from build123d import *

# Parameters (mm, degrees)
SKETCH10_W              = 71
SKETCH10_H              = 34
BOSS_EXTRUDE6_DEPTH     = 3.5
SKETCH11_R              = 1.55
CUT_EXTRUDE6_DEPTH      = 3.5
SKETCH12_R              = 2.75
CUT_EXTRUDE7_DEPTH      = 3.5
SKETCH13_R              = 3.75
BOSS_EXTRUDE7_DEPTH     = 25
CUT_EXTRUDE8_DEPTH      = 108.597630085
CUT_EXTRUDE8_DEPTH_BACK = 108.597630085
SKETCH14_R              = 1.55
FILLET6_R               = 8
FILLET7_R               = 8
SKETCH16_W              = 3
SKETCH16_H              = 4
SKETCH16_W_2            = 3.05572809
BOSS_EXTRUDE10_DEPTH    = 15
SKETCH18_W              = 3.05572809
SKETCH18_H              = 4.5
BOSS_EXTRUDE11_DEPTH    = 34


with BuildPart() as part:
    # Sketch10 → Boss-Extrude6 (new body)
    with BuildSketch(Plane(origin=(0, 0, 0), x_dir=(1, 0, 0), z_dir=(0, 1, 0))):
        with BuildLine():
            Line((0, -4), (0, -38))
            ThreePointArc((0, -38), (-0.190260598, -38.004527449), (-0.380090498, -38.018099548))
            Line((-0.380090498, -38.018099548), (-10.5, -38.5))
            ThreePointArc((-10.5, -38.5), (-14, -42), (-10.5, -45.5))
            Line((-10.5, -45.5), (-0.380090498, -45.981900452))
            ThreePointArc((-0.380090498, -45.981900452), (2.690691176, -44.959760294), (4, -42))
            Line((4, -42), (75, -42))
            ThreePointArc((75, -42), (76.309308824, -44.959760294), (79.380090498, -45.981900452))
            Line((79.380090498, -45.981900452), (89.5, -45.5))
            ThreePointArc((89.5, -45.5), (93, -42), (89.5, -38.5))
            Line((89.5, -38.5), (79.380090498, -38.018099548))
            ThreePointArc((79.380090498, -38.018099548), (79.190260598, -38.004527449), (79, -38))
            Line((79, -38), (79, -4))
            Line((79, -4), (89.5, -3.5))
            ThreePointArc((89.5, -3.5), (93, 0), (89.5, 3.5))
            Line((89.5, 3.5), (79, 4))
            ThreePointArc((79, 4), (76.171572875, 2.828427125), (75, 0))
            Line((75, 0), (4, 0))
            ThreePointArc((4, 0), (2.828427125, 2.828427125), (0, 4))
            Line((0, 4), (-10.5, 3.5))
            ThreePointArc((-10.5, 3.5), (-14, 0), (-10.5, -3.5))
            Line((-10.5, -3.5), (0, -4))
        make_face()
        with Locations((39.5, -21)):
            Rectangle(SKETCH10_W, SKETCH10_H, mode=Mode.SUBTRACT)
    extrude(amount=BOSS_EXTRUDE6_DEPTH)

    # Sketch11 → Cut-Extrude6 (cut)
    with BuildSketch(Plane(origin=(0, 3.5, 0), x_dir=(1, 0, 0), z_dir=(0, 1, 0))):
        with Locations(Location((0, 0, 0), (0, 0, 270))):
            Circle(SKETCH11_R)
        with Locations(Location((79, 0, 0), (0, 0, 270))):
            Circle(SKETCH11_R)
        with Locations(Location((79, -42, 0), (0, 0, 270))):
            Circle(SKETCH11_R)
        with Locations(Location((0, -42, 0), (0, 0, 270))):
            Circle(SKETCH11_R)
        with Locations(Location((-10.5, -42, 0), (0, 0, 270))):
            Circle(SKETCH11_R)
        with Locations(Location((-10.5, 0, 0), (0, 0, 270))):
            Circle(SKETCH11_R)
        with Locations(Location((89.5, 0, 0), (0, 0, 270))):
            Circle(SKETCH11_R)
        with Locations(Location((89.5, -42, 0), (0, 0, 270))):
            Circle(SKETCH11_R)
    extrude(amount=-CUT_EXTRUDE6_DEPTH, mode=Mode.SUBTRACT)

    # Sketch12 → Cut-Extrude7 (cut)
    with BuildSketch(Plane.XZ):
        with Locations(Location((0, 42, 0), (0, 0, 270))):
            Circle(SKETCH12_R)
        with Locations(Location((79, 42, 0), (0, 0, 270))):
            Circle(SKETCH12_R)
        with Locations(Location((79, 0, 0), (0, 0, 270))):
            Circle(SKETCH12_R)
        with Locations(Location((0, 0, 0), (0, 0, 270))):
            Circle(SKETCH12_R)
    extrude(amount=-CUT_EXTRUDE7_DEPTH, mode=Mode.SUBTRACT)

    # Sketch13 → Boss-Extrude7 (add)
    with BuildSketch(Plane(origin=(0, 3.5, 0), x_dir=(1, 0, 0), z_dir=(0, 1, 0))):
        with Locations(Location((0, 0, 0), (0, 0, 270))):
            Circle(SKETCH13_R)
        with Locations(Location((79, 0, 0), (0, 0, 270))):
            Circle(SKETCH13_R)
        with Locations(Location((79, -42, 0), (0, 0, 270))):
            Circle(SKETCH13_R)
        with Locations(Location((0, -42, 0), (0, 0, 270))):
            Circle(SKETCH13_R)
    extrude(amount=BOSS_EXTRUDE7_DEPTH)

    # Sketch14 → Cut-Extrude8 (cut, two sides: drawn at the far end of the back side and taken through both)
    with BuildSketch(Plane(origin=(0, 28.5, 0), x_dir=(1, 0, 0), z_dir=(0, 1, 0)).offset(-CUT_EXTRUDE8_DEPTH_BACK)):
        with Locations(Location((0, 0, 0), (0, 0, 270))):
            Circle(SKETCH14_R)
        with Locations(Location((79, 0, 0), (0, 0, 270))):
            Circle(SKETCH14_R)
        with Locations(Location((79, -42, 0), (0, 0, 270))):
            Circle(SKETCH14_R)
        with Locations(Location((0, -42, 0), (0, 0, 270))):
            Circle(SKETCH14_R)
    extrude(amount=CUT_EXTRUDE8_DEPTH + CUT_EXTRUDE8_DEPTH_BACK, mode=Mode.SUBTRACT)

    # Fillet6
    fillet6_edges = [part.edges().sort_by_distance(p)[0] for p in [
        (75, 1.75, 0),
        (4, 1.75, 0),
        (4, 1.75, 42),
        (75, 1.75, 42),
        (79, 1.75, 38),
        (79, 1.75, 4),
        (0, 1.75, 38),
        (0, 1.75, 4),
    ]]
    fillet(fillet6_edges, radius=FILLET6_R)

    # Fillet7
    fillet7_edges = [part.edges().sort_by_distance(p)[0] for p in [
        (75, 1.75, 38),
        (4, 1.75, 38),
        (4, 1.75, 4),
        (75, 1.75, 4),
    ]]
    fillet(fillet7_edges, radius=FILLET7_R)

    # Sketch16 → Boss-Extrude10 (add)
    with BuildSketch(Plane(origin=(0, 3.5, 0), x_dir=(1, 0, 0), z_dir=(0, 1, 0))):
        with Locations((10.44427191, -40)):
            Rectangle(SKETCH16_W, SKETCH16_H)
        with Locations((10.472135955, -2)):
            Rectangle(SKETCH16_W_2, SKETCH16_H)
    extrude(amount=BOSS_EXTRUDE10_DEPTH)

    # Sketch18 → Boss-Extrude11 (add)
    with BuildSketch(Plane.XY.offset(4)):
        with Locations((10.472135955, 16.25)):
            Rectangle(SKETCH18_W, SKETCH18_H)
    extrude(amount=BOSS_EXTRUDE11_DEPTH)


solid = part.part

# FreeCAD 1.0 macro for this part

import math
import FreeCAD as App
import Part
import Sketcher

V = App.Vector


def edges_at(feature, points):
    """Names of the edges that pass closest to the given points."""
    edges = feature.Shape.Edges
    near = lambda p: min(range(len(edges)), key=lambda i: edges[i].distToShape(Part.Vertex(*p))[0])
    return sorted({f"Edge{near(p) + 1}" for p in points})

doc = App.newDocument("Part")
body = doc.addObject("PartDesign::Body", "Body")

sketch1 = body.newObject("Sketcher::SketchObject", "Sketch")
sketch1.AttachmentSupport = (doc.getObject("XZ_Plane"), [""])
sketch1.MapMode = "FlatFace"
sketch1.addGeometry([
    Part.LineSegment(V(0, 4, 0), V(0, 38, 0)),
    Part.ArcOfCircle(Part.Circle(V(0, 42, 0), V(0, 0, 1), 4), math.radians(-95.45), math.radians(-90)),
    Part.LineSegment(V(-0.38, 38.02, 0), V(-10.5, 38.5, 0)),
    Part.ArcOfCircle(Part.Circle(V(-10.5, 42, 0), V(0, 0, 1), 3.5), math.radians(90), math.radians(270)),
    Part.LineSegment(V(-10.5, 45.5, 0), V(-0.38, 45.98, 0)),
    Part.ArcOfCircle(Part.Circle(V(0, 42, 0), V(0, 0, 1), 4), math.radians(0), math.radians(95)),
    Part.LineSegment(V(4, 42, 0), V(75, 42, 0)),
    Part.ArcOfCircle(Part.Circle(V(79, 42, 0), V(0, 0, 1), 4), math.radians(85), math.radians(180)),
    Part.LineSegment(V(79.38, 45.98, 0), V(89.5, 45.5, 0)),
    Part.ArcOfCircle(Part.Circle(V(89.5, 42, 0), V(0, 0, 1), 3.5), math.radians(-90), math.radians(90)),
    Part.LineSegment(V(89.5, 38.5, 0), V(79.38, 38.02, 0)),
    Part.ArcOfCircle(Part.Circle(V(79, 42, 0), V(0, 0, 1), 4), math.radians(-90), math.radians(-84.55)),
    Part.LineSegment(V(79, 38, 0), V(79, 4, 0)),
    Part.LineSegment(V(79, 4, 0), V(89.5, 3.5, 0)),
    Part.ArcOfCircle(Part.Circle(V(89.5, 0, 0), V(0, 0, 1), 3.5), math.radians(-90), math.radians(90)),
    Part.LineSegment(V(89.5, -3.5, 0), V(79, -4, 0)),
    Part.ArcOfCircle(Part.Circle(V(79, 0, 0), V(0, 0, 1), 4), math.radians(180), math.radians(270)),
    Part.LineSegment(V(75, 0, 0), V(4, 0, 0)),
    Part.ArcOfCircle(Part.Circle(V(0, 0, 0), V(0, 0, 1), 4), math.radians(-90), math.radians(0)),
    Part.LineSegment(V(0, -4, 0), V(-10.5, -3.5, 0)),
    Part.ArcOfCircle(Part.Circle(V(-10.5, 0, 0), V(0, 0, 1), 3.5), math.radians(90), math.radians(270)),
    Part.LineSegment(V(-10.5, 3.5, 0), V(0, 4, 0)),
    Part.LineSegment(V(75, 38, 0), V(4, 38, 0)),
    Part.LineSegment(V(4, 38, 0), V(4, 4, 0)),
    Part.LineSegment(V(4, 4, 0), V(75, 4, 0)),
    Part.LineSegment(V(75, 4, 0), V(75, 38, 0)),
], False)
sketch1.addConstraint([
    Sketcher.Constraint("Coincident", 0, 2, 1, 2),
    Sketcher.Constraint("Coincident", 1, 1, 2, 1),
    Sketcher.Constraint("Coincident", 2, 2, 3, 2),
    Sketcher.Constraint("Coincident", 3, 1, 4, 1),
    Sketcher.Constraint("Coincident", 4, 2, 5, 2),
    Sketcher.Constraint("Coincident", 5, 1, 6, 1),
    Sketcher.Constraint("Coincident", 6, 2, 7, 2),
    Sketcher.Constraint("Coincident", 7, 1, 8, 1),
    Sketcher.Constraint("Coincident", 8, 2, 9, 2),
    Sketcher.Constraint("Coincident", 9, 1, 10, 1),
    Sketcher.Constraint("Coincident", 10, 2, 11, 2),
    Sketcher.Constraint("Coincident", 11, 1, 12, 1),
    Sketcher.Constraint("Coincident", 12, 2, 13, 1),
    Sketcher.Constraint("Coincident", 13, 2, 14, 2),
    Sketcher.Constraint("Coincident", 14, 1, 15, 1),
    Sketcher.Constraint("Coincident", 15, 2, 16, 2),
    Sketcher.Constraint("Coincident", 16, 1, 17, 1),
    Sketcher.Constraint("Coincident", 17, 2, 18, 2),
    Sketcher.Constraint("Coincident", 18, 1, 19, 1),
    Sketcher.Constraint("Coincident", 19, 2, 20, 2),
    Sketcher.Constraint("Coincident", 20, 1, 21, 1),
    Sketcher.Constraint("Coincident", 21, 2, 0, 1),
    Sketcher.Constraint("Coincident", 22, 2, 23, 1),
    Sketcher.Constraint("Coincident", 23, 2, 24, 1),
    Sketcher.Constraint("Coincident", 24, 2, 25, 1),
    Sketcher.Constraint("Coincident", 25, 2, 22, 1),
    Sketcher.Constraint("Vertical", 0),
    Sketcher.Constraint("Horizontal", 6),
    Sketcher.Constraint("Vertical", 12),
    Sketcher.Constraint("Horizontal", 17),
    Sketcher.Constraint("Horizontal", 22),
    Sketcher.Constraint("Vertical", 23),
    Sketcher.Constraint("Horizontal", 24),
    Sketcher.Constraint("Vertical", 25),
    Sketcher.Constraint("Coincident", 18, 3, -1, 1),
    Sketcher.Constraint("Coincident", 5, 3, 1, 3),
    Sketcher.Constraint("Coincident", 11, 3, 7, 3),
    Sketcher.Constraint("Equal", 1, 5),
    Sketcher.Constraint("Equal", 5, 7),
    Sketcher.Constraint("Equal", 3, 9),
    Sketcher.Constraint("Equal", 7, 11),
    Sketcher.Constraint("Equal", 9, 14),
    Sketcher.Constraint("Equal", 11, 16),
    Sketcher.Constraint("Equal", 16, 18),
    Sketcher.Constraint("Equal", 14, 20),
    Sketcher.Constraint("Symmetric", 18, 1, 21, 2, -1, 1),
    Sketcher.Constraint("Symmetric", 13, 2, 14, 1, -1),
    Sketcher.Constraint("Symmetric", 12, 2, 15, 2, -1),
    Sketcher.Constraint("Symmetric", 19, 2, 20, 1, -1),
    Sketcher.Constraint("PointOnObject", 1, 3, -2),
    Sketcher.Constraint("PointOnObject", 16, 3, -1),
    Sketcher.Constraint("PointOnObject", 0, 2, -2),
    Sketcher.Constraint("PointOnObject", 16, 1, -1),
    Sketcher.Constraint("Parallel", 2, 8),
    Sketcher.Constraint("Parallel", 4, 10),
    Sketcher.Constraint("Parallel", 8, 13),
    Sketcher.Constraint("Parallel", 10, 15),
    Sketcher.Constraint("Parallel", 13, 19),
    Sketcher.Constraint("Horizontal", 1, 3, 3, 3),
    Sketcher.Constraint("Horizontal", 5, 3, 7, 3),
    Sketcher.Constraint("Horizontal", 7, 3, 9, 3),
    Sketcher.Constraint("Horizontal", 11, 3, 5, 1),
    Sketcher.Constraint("Horizontal", 4, 2, 7, 1),
    Sketcher.Constraint("Horizontal", 1, 1, 10, 2),
    Sketcher.Constraint("Horizontal", 11, 1, 22, 2),
    Sketcher.Constraint("Horizontal", 21, 2, 23, 2),
    Sketcher.Constraint("Vertical", 9, 3, 14, 3),
    Sketcher.Constraint("Vertical", 11, 3, 16, 3),
    Sketcher.Constraint("Vertical", 3, 3, 20, 3),
    Sketcher.Constraint("Vertical", 20, 3, 2, 2),
    Sketcher.Constraint("Vertical", 2, 2, 3, 1),
    Sketcher.Constraint("Vertical", 14, 3, 8, 2),
    Sketcher.Constraint("Vertical", 16, 3, 11, 1),
    Sketcher.Constraint("Vertical", 9, 1, 13, 2),
    Sketcher.Constraint("Vertical", 17, 2, 22, 2),
    Sketcher.Constraint("Vertical", 16, 1, 24, 2),
    Sketcher.Constraint("Radius", 1, 4.0),
    Sketcher.Constraint("Radius", 3, 3.5),
    Sketcher.Constraint("DistanceX", 6, 1, 6, 2, 71.0),
    Sketcher.Constraint("DistanceY", 0, 1, 0, 2, 34.0),
    Sketcher.Constraint("DistanceX", 3, 3, 9, 3, 100.0),
])
pad1 = body.newObject("PartDesign::Pad", "Pad")
pad1.Profile = sketch1
pad1.Length = 3.5
pad1.Reversed = True

sketch2 = body.newObject("Sketcher::SketchObject", "Sketch001")
sketch2.AttachmentSupport = (doc.getObject("XZ_Plane"), [""])
sketch2.MapMode = "FlatFace"
sketch2.AttachmentOffset = App.Placement(V(0, 0, -3.5), App.Rotation())
sketch2.addGeometry([
    Part.Circle(V(0, 0, 0), V(0, 0, 1), 1.6),
    Part.Circle(V(79, 0, 0), V(0, 0, 1), 1.6),
    Part.Circle(V(79, 42, 0), V(0, 0, 1), 1.6),
    Part.Circle(V(0, 42, 0), V(0, 0, 1), 1.6),
    Part.Circle(V(-10.5, 42, 0), V(0, 0, 1), 1.6),
    Part.Circle(V(-10.5, 0, 0), V(0, 0, 1), 1.6),
    Part.Circle(V(89.5, 0, 0), V(0, 0, 1), 1.6),
    Part.Circle(V(89.5, 42, 0), V(0, 0, 1), 1.6),
], False)
sketch2.addConstraint([
    Sketcher.Constraint("Coincident", 0, 3, -1, 1),
    Sketcher.Constraint("Equal", 0, 1),
    Sketcher.Constraint("Equal", 1, 2),
    Sketcher.Constraint("Equal", 2, 3),
    Sketcher.Constraint("Equal", 3, 4),
    Sketcher.Constraint("Equal", 4, 5),
    Sketcher.Constraint("Equal", 5, 6),
    Sketcher.Constraint("Equal", 6, 7),
    Sketcher.Constraint("PointOnObject", 1, 3, -1),
    Sketcher.Constraint("PointOnObject", 3, 3, -2),
    Sketcher.Constraint("PointOnObject", 5, 3, -1),
    Sketcher.Constraint("PointOnObject", 6, 3, -1),
    Sketcher.Constraint("Horizontal", 2, 3, 3, 3),
    Sketcher.Constraint("Horizontal", 3, 3, 4, 3),
    Sketcher.Constraint("Horizontal", 4, 3, 7, 3),
    Sketcher.Constraint("Vertical", 1, 3, 2, 3),
    Sketcher.Constraint("Vertical", 4, 3, 5, 3),
    Sketcher.Constraint("Vertical", 6, 3, 7, 3),
    Sketcher.Constraint("Diameter", 0, 3.1),
    Sketcher.Constraint("DistanceX", -1, 1, 1, 3, 79.0),
    Sketcher.Constraint("DistanceY", -1, 1, 2, 3, 42.0),
    Sketcher.Constraint("DistanceX", 5, 3, 6, 3, 100.0),
    Sketcher.Constraint("DistanceX", 4, 3, -1, 1, 10.5),
])
pocket1 = body.newObject("PartDesign::Pocket", "Pocket")
pocket1.Profile = sketch2
pocket1.Length = 3.5
pocket1.Reversed = True

sketch3 = body.newObject("Sketcher::SketchObject", "Sketch002")
sketch3.AttachmentSupport = (doc.getObject("XZ_Plane"), [""])
sketch3.MapMode = "FlatFace"
sketch3.addGeometry([
    Part.Circle(V(0, 42, 0), V(0, 0, 1), 2.8),
    Part.Circle(V(79, 42, 0), V(0, 0, 1), 2.8),
    Part.Circle(V(79, 0, 0), V(0, 0, 1), 2.8),
    Part.Circle(V(0, 0, 0), V(0, 0, 1), 2.8),
], False)
sketch3.addConstraint([
    Sketcher.Constraint("Coincident", 3, 3, -1, 1),
    Sketcher.Constraint("Equal", 0, 1),
    Sketcher.Constraint("Equal", 1, 2),
    Sketcher.Constraint("Equal", 2, 3),
    Sketcher.Constraint("PointOnObject", 0, 3, -2),
    Sketcher.Constraint("PointOnObject", 2, 3, -1),
    Sketcher.Constraint("Horizontal", 0, 3, 1, 3),
    Sketcher.Constraint("Vertical", 1, 3, 2, 3),
    Sketcher.Constraint("Diameter", 0, 5.5),
    Sketcher.Constraint("DistanceY", -1, 1, 0, 3, 42.0),
    Sketcher.Constraint("DistanceX", -1, 1, 1, 3, 79.0),
])
pocket2 = body.newObject("PartDesign::Pocket", "Pocket001")
pocket2.Profile = sketch3
pocket2.Length = 3.5

sketch4 = body.newObject("Sketcher::SketchObject", "Sketch003")
sketch4.AttachmentSupport = (doc.getObject("XZ_Plane"), [""])
sketch4.MapMode = "FlatFace"
sketch4.AttachmentOffset = App.Placement(V(0, 0, -3.5), App.Rotation())
sketch4.addGeometry([
    Part.Circle(V(0, 0, 0), V(0, 0, 1), 3.8),
    Part.Circle(V(79, 0, 0), V(0, 0, 1), 3.8),
    Part.Circle(V(79, 42, 0), V(0, 0, 1), 3.8),
    Part.Circle(V(0, 42, 0), V(0, 0, 1), 3.8),
], False)
sketch4.addConstraint([
    Sketcher.Constraint("Coincident", 0, 3, -1, 1),
    Sketcher.Constraint("Equal", 0, 1),
    Sketcher.Constraint("Equal", 1, 2),
    Sketcher.Constraint("Equal", 2, 3),
    Sketcher.Constraint("PointOnObject", 1, 3, -1),
    Sketcher.Constraint("PointOnObject", 3, 3, -2),
    Sketcher.Constraint("Horizontal", 2, 3, 3, 3),
    Sketcher.Constraint("Vertical", 1, 3, 2, 3),
    Sketcher.Constraint("Diameter", 0, 7.5),
    Sketcher.Constraint("DistanceX", -1, 1, 1, 3, 79.0),
    Sketcher.Constraint("DistanceY", -1, 1, 2, 3, 42.0),
])
pad2 = body.newObject("PartDesign::Pad", "Pad001")
pad2.Profile = sketch4
pad2.Length = 25
pad2.Reversed = True

sketch5 = body.newObject("Sketcher::SketchObject", "Sketch004")
sketch5.AttachmentSupport = (doc.getObject("XZ_Plane"), [""])
sketch5.MapMode = "FlatFace"
sketch5.AttachmentOffset = App.Placement(V(0, 0, -28.5), App.Rotation())
sketch5.addGeometry([
    Part.Circle(V(0, 0, 0), V(0, 0, 1), 1.6),
    Part.Circle(V(79, 0, 0), V(0, 0, 1), 1.6),
    Part.Circle(V(79, 42, 0), V(0, 0, 1), 1.6),
    Part.Circle(V(0, 42, 0), V(0, 0, 1), 1.6),
], False)
sketch5.addConstraint([
    Sketcher.Constraint("Coincident", 0, 3, -1, 1),
    Sketcher.Constraint("Equal", 0, 1),
    Sketcher.Constraint("Equal", 1, 2),
    Sketcher.Constraint("Equal", 2, 3),
    Sketcher.Constraint("PointOnObject", 1, 3, -1),
    Sketcher.Constraint("PointOnObject", 3, 3, -2),
    Sketcher.Constraint("Horizontal", 2, 3, 3, 3),
    Sketcher.Constraint("Vertical", 1, 3, 2, 3),
    Sketcher.Constraint("Diameter", 0, 3.1),
    Sketcher.Constraint("DistanceX", -1, 1, 1, 3, 79.0),
    Sketcher.Constraint("DistanceY", -1, 1, 2, 3, 42.0),
])
pocket3 = body.newObject("PartDesign::Pocket", "Pocket002")
pocket3.Profile = sketch5
pocket3.Type = "ThroughAll"
pocket3.Midplane = True
doc.recompute()

fillet = body.newObject("PartDesign::Fillet", "Fillet")
fillet.Base = (pocket3, edges_at(pocket3, [
    (75, 1.75, 0),
    (4, 1.75, 0),
    (4, 1.75, 42),
    (75, 1.75, 42),
    (79, 1.75, 38),
    (79, 1.75, 4),
    (0, 1.75, 38),
    (0, 1.75, 4),
]))
fillet.Radius = 8
doc.recompute()

fillet2 = body.newObject("PartDesign::Fillet", "Fillet001")
fillet2.Base = (fillet, edges_at(fillet, [
    (75, 1.75, 38),
    (4, 1.75, 38),
    (4, 1.75, 4),
    (75, 1.75, 4),
]))
fillet2.Radius = 8

sketch6 = body.newObject("Sketcher::SketchObject", "Sketch005")
sketch6.AttachmentSupport = (doc.getObject("XZ_Plane"), [""])
sketch6.MapMode = "FlatFace"
sketch6.AttachmentOffset = App.Placement(V(0, 0, -3.5), App.Rotation())
sketch6.addGeometry([
    Part.LineSegment(V(8.9, 38, 0), V(8.9, 42, 0)),
    Part.LineSegment(V(8.9, 42, 0), V(11.9, 42, 0)),
    Part.LineSegment(V(11.9, 42, 0), V(11.9, 38, 0)),
    Part.LineSegment(V(11.9, 38, 0), V(8.9, 38, 0)),
    Part.LineSegment(V(8.9, 0, 0), V(8.9, 4, 0)),
    Part.LineSegment(V(8.9, 4, 0), V(12, 4, 0)),
    Part.LineSegment(V(12, 4, 0), V(12, 0, 0)),
    Part.LineSegment(V(12, 0, 0), V(8.9, 0, 0)),
], False)
sketch6.addConstraint([
    Sketcher.Constraint("Coincident", 0, 2, 1, 1),
    Sketcher.Constraint("Coincident", 1, 2, 2, 1),
    Sketcher.Constraint("Coincident", 2, 2, 3, 1),
    Sketcher.Constraint("Coincident", 3, 2, 0, 1),
    Sketcher.Constraint("Coincident", 4, 2, 5, 1),
    Sketcher.Constraint("Coincident", 5, 2, 6, 1),
    Sketcher.Constraint("Coincident", 6, 2, 7, 1),
    Sketcher.Constraint("Coincident", 7, 2, 4, 1),
    Sketcher.Constraint("Vertical", 0),
    Sketcher.Constraint("Horizontal", 1),
    Sketcher.Constraint("Vertical", 2),
    Sketcher.Constraint("Horizontal", 3),
    Sketcher.Constraint("Vertical", 4),
    Sketcher.Constraint("Horizontal", 5),
    Sketcher.Constraint("Vertical", 6),
    Sketcher.Constraint("Horizontal", 7),
    Sketcher.Constraint("PointOnObject", 6, 2, -1),
    Sketcher.Constraint("Vertical", 3, 2, 4, 2),
    Sketcher.Constraint("Equal", 2, 4),
    Sketcher.Constraint("DistanceX", 1, 1, 1, 2, 3.0),
    Sketcher.Constraint("DistanceY", 0, 1, 0, 2, 4.0),
    Sketcher.Constraint("DistanceY", -1, 1, 0, 2, 42.0),
    Sketcher.Constraint("DistanceX", -1, 1, 5, 2, 12.0),
    Sketcher.Constraint("DistanceX", 5, 1, 5, 2, 3.055728),
])
pad3 = body.newObject("PartDesign::Pad", "Pad002")
pad3.Profile = sketch6
pad3.Length = 15
pad3.Reversed = True

sketch7 = body.newObject("Sketcher::SketchObject", "Sketch006")
sketch7.AttachmentSupport = (doc.getObject("XY_Plane"), [""])
sketch7.MapMode = "FlatFace"
sketch7.AttachmentOffset = App.Placement(V(0, 0, 4), App.Rotation())
sketch7.addGeometry([
    Part.LineSegment(V(8.9, 18.5, 0), V(8.9, 14, 0)),
    Part.LineSegment(V(8.9, 14, 0), V(12, 14, 0)),
    Part.LineSegment(V(12, 14, 0), V(12, 18.5, 0)),
    Part.LineSegment(V(12, 18.5, 0), V(8.9, 18.5, 0)),
], False)
sketch7.addConstraint([
    Sketcher.Constraint("Coincident", 0, 2, 1, 1),
    Sketcher.Constraint("Coincident", 1, 2, 2, 1),
    Sketcher.Constraint("Coincident", 2, 2, 3, 1),
    Sketcher.Constraint("Coincident", 3, 2, 0, 1),
    Sketcher.Constraint("Vertical", 0),
    Sketcher.Constraint("Horizontal", 1),
    Sketcher.Constraint("Vertical", 2),
    Sketcher.Constraint("Horizontal", 3),
    Sketcher.Constraint("DistanceY", 0, 2, 0, 1, 4.5),
    Sketcher.Constraint("DistanceY", -1, 1, 0, 2, 14.0),
    Sketcher.Constraint("DistanceX", -1, 1, 1, 2, 12.0),
    Sketcher.Constraint("DistanceX", 1, 1, 1, 2, 3.055728),
])
pad4 = body.newObject("PartDesign::Pad", "Pad003")
pad4.Profile = sketch7
pad4.Length = 34

doc.recompute()
